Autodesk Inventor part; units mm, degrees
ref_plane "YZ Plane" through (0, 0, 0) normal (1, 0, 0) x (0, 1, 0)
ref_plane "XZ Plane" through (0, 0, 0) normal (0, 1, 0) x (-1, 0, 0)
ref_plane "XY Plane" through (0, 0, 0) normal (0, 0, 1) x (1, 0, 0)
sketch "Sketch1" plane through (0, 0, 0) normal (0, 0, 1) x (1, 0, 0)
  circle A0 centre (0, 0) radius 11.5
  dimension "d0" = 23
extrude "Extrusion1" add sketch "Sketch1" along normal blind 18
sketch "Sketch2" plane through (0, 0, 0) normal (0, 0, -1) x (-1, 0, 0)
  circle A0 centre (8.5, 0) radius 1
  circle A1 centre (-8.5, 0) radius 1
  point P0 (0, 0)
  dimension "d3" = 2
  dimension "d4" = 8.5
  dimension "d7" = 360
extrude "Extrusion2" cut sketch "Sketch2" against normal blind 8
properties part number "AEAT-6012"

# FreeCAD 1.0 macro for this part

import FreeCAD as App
import Part
import Sketcher
from FreeCAD import Vector

doc = App.newDocument("Part")
body = doc.addObject("PartDesign::Body", "Body")

# Sketch on XY plane
sketch1 = doc.addObject("Sketcher::SketchObject", "Sketch")
body.addObject(sketch1)
sketch1.AttachmentSupport = (doc.XY_Plane, [""])
sketch1.MapMode = "FlatFace"
sketch1.addGeometry(Part.Circle(Vector(0, 0, 0), Vector(0, 0, 1), 11.5), False)
sketch1.addConstraint(Sketcher.Constraint("Coincident", 0, 3, -1, 1))
sketch1.addConstraint(Sketcher.Constraint("Diameter", 0, 23.0))
pad1 = doc.addObject("PartDesign::Pad", "Pad")
body.addObject(pad1)
pad1.Profile = sketch1
pad1.Length = 18

# Sketch on XY plane
sketch2 = doc.addObject("Sketcher::SketchObject", "Sketch001")
body.addObject(sketch2)
sketch2.AttachmentSupport = (doc.XY_Plane, [""])
sketch2.MapMode = "FlatFace"
sketch2.addGeometry(Part.Circle(Vector(-8.5, 0, 0), Vector(0, 0, 1), 1), False)
sketch2.addGeometry(Part.Circle(Vector(8.5, 0, 0), Vector(0, 0, 1), 1), False)
sketch2.addConstraint(Sketcher.Constraint("Equal", 0, 1))
sketch2.addConstraint(Sketcher.Constraint("Symmetric", 0, 3, 1, 3, -1, 1))
sketch2.addConstraint(Sketcher.Constraint("PointOnObject", 0, 3, -1))
sketch2.addConstraint(Sketcher.Constraint("Diameter", 0, 2.0))
sketch2.addConstraint(Sketcher.Constraint("DistanceX", 0, 3, -1, 1, 8.5))
pocket1 = doc.addObject("PartDesign::Pocket", "Pocket")
body.addObject(pocket1)
pocket1.Profile = sketch2
pocket1.Length = 8
pocket1.Reversed = True

doc.recompute()
